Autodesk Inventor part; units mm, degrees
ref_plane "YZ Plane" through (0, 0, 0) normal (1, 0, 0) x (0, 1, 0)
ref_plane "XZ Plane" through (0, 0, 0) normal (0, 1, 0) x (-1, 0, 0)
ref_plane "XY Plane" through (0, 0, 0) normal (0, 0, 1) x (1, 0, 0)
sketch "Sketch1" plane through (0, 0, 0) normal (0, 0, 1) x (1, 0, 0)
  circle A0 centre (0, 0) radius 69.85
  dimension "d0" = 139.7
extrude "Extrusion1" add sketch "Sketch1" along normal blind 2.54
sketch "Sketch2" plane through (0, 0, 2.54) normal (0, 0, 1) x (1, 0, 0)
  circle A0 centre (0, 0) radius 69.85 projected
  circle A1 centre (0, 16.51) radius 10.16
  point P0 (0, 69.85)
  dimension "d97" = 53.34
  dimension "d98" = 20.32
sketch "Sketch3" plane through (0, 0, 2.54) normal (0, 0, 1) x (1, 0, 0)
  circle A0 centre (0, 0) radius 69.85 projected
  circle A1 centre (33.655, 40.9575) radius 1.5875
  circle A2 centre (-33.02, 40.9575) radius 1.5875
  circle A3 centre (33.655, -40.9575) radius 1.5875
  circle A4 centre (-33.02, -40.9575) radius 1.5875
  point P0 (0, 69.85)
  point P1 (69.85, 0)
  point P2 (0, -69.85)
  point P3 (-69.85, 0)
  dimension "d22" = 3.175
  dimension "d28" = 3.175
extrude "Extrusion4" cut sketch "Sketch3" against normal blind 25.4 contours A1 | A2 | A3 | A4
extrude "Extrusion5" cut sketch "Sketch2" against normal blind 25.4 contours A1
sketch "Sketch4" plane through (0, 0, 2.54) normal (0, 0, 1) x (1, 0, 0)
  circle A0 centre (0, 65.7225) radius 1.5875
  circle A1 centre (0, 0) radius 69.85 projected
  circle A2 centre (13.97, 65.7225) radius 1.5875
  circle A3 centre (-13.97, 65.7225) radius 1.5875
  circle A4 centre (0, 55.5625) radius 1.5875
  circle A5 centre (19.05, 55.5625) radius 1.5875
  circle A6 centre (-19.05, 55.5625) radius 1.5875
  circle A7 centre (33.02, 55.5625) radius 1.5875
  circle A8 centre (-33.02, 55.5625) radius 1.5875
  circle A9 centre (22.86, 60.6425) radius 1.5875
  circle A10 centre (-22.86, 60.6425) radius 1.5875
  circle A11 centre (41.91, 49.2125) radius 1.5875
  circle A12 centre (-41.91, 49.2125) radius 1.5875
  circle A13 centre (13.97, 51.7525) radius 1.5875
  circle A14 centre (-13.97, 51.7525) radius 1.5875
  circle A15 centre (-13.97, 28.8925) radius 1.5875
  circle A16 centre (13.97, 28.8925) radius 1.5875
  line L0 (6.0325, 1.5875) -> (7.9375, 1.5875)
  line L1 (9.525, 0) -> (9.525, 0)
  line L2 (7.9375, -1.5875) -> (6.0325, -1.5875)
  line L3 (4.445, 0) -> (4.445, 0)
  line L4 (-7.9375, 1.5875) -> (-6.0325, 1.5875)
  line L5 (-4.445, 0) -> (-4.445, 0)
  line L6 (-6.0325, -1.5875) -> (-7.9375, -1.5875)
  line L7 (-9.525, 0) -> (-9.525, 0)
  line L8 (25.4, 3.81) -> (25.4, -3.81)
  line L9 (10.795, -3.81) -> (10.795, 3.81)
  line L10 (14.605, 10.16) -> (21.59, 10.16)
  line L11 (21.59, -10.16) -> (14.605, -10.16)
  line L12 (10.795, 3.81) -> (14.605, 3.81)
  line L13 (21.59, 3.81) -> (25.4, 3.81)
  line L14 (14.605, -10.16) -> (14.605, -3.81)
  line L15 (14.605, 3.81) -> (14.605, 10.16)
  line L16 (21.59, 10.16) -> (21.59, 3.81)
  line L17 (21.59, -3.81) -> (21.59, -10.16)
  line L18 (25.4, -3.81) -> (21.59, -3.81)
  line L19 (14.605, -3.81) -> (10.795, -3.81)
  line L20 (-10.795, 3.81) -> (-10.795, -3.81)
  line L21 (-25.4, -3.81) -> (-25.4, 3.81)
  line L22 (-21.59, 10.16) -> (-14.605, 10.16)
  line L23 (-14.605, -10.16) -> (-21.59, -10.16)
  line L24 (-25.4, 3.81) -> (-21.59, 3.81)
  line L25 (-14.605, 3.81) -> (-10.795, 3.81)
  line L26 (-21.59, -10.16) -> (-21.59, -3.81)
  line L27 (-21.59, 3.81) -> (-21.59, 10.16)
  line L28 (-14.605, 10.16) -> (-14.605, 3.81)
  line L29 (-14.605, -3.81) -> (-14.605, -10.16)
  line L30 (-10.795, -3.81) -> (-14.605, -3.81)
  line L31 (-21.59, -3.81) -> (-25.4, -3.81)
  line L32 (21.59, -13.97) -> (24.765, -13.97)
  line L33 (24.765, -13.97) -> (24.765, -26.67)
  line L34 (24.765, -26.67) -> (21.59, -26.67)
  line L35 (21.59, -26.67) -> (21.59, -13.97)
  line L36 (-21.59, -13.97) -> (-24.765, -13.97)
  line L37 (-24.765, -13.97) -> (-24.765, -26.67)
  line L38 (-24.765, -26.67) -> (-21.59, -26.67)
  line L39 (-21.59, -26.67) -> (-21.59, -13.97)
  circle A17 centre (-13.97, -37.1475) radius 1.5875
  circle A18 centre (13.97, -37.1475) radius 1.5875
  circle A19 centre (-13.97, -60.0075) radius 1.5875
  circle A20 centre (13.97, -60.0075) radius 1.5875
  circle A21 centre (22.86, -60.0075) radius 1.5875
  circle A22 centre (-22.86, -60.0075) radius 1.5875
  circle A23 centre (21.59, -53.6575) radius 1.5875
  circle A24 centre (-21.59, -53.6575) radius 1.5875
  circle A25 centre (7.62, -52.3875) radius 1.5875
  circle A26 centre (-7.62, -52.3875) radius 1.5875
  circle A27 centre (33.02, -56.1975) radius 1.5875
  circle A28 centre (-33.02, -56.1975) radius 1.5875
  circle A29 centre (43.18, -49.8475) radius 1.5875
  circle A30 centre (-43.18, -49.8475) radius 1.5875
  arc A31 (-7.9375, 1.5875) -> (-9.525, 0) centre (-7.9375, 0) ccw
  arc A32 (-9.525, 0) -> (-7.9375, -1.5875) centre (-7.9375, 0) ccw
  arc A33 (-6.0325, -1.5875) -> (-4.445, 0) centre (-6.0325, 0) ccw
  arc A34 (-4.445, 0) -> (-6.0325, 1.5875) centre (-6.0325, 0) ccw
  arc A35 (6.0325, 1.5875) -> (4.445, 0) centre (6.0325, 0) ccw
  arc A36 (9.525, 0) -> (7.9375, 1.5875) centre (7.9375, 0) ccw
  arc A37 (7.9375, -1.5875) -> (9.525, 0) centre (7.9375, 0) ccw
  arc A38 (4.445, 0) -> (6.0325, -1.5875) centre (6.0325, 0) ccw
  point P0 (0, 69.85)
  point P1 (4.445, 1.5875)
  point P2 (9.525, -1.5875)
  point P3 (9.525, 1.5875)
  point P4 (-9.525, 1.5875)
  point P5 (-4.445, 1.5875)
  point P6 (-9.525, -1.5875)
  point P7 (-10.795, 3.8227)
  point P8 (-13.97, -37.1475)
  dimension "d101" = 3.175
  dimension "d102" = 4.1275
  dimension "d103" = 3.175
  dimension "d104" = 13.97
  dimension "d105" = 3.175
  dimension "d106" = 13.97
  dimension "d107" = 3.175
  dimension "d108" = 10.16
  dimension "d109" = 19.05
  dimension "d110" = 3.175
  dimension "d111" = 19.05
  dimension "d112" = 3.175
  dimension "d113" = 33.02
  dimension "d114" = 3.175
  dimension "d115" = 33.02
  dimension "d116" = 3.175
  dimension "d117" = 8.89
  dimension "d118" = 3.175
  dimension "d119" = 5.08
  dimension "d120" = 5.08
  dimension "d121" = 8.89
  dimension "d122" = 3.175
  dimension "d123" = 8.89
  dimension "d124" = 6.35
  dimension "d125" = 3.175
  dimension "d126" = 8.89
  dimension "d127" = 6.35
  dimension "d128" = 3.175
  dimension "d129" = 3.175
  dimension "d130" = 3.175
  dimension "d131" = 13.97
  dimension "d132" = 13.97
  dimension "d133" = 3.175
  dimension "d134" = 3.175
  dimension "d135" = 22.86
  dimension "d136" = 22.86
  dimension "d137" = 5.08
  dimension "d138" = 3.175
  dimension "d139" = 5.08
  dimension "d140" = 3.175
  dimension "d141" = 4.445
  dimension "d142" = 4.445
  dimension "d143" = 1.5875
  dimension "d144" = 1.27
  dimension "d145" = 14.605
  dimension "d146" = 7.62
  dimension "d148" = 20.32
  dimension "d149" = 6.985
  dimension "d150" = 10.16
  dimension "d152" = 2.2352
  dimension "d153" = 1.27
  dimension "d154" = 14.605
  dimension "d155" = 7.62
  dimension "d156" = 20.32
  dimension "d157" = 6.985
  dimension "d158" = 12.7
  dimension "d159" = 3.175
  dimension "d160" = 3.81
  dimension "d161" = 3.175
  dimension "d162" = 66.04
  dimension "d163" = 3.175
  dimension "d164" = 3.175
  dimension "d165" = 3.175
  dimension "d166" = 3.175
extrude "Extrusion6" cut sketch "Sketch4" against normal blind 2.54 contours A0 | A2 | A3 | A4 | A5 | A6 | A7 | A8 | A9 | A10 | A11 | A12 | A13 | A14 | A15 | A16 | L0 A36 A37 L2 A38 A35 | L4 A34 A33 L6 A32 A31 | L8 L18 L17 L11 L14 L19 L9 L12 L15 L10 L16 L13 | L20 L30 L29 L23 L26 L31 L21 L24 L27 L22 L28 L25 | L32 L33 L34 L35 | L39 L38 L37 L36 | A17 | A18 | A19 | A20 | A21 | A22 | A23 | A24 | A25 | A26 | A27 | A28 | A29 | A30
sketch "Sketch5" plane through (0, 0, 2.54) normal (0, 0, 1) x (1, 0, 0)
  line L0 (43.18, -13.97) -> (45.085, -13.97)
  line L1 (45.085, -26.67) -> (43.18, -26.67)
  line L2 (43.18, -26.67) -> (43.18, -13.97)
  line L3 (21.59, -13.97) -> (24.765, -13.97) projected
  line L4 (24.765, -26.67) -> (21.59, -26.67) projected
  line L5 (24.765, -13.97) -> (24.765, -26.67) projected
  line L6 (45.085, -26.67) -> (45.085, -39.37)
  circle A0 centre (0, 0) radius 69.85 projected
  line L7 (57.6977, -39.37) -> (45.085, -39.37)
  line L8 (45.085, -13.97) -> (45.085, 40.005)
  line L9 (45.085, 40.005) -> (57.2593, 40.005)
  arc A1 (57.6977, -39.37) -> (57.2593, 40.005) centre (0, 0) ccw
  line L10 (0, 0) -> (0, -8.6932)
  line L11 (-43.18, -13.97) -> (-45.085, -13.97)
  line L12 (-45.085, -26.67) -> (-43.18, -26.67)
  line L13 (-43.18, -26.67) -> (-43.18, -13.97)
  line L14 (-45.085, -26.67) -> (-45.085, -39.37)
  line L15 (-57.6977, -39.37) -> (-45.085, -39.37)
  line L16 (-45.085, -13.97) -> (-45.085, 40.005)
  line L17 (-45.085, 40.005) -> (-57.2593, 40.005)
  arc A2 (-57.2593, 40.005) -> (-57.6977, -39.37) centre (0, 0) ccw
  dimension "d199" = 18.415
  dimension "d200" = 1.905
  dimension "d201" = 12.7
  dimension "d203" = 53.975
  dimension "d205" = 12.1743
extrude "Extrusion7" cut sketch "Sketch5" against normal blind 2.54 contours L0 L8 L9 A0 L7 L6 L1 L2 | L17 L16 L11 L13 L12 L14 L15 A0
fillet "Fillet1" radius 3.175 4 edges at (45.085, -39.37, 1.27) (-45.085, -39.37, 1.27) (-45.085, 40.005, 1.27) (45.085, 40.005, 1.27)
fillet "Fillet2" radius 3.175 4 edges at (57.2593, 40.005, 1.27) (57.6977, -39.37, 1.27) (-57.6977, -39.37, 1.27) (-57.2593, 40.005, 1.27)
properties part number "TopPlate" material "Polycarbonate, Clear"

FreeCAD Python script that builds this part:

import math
import FreeCAD as App
import Part
import Sketcher

V = App.Vector
Q = App.Units.Quantity


def edges_at(feature, points):
    """Names of the edges that pass closest to the given points."""
    edges = feature.Shape.Edges
    near = lambda p: min(range(len(edges)), key=lambda i: edges[i].distToShape(Part.Vertex(*p))[0])
    return sorted({f"Edge{near(p) + 1}" for p in points})

doc = App.newDocument("Part")
body = doc.addObject("PartDesign::Body", "Body")

sketch1 = body.newObject("Sketcher::SketchObject", "Sketch")
sketch1.AttachmentSupport = (doc.getObject("XY_Plane"), [""])
sketch1.MapMode = "FlatFace"
sketch1.addGeometry(Part.Circle(V(0, 0, 0), V(0, 0, 1), 70), False)
sketch1.addConstraint(Sketcher.Constraint("Coincident", 0, 3, -1, 1))
sketch1.addConstraint(Sketcher.Constraint("Diameter", 0, Q("5.5 in")))
pad1 = body.newObject("PartDesign::Pad", "Pad")
pad1.Profile = sketch1
pad1.Length = Q("0.1 in")

sketch2 = body.newObject("Sketcher::SketchObject", "Sketch001")
sketch2.AttachmentSupport = (doc.getObject("XY_Plane"), [""])
sketch2.MapMode = "FlatFace"
sketch2.AttachmentOffset = App.Placement(V(0, 0, 0.1 * 25.4), App.Rotation())
sketch2.addGeometry(Part.Circle(V(33.7, 41, 0), V(0, 0, 1), 1.6), False)
sketch2.addGeometry(Part.Circle(V(-33, 41, 0), V(0, 0, 1), 1.6), False)
sketch2.addGeometry(Part.Circle(V(33.7, -41, 0), V(0, 0, 1), 1.6), False)
sketch2.addGeometry(Part.Circle(V(-33, -41, 0), V(0, 0, 1), 1.6), False)
sketch2.addConstraint(Sketcher.Constraint("Equal", 0, 1))
sketch2.addConstraint(Sketcher.Constraint("Equal", 1, 2))
sketch2.addConstraint(Sketcher.Constraint("Equal", 2, 3))
sketch2.addConstraint(Sketcher.Constraint("Symmetric", 0, 3, 2, 3, -1))
sketch2.addConstraint(Sketcher.Constraint("Symmetric", 1, 3, 3, 3, -1))
sketch2.addConstraint(Sketcher.Constraint("Horizontal", 0, 3, 1, 3))
sketch2.addConstraint(Sketcher.Constraint("Diameter", 0, Q("0.125 in")))
sketch2.addConstraint(Sketcher.Constraint("DistanceX", 1, 3, -1, 1, Q("1.3 in")))
sketch2.addConstraint(Sketcher.Constraint("DistanceX", -1, 1, 0, 3, Q("1.325 in")))
sketch2.addConstraint(Sketcher.Constraint("DistanceY", 2, 3, 0, 3, Q("3.225 in")))
pocket1 = body.newObject("PartDesign::Pocket", "Pocket")
pocket1.Profile = sketch2
pocket1.Length = Q("1 in")

sketch3 = body.newObject("Sketcher::SketchObject", "Sketch002")
sketch3.AttachmentSupport = (doc.getObject("XY_Plane"), [""])
sketch3.MapMode = "FlatFace"
sketch3.AttachmentOffset = App.Placement(V(0, 0, 0.1 * 25.4), App.Rotation())
sketch3.addGeometry(Part.Circle(V(0, 17, 0), V(0, 0, 1), 10), False)
sketch3.addConstraint(Sketcher.Constraint("PointOnObject", 0, 3, -2))
sketch3.addConstraint(Sketcher.Constraint("Diameter", 0, Q("0.8 in")))
sketch3.addConstraint(Sketcher.Constraint("DistanceY", -1, 1, 0, 3, Q("0.65 in")))
pocket2 = body.newObject("PartDesign::Pocket", "Pocket001")
pocket2.Profile = sketch3
pocket2.Length = Q("1 in")

sketch4 = body.newObject("Sketcher::SketchObject", "Sketch003")
sketch4.AttachmentSupport = (doc.getObject("XY_Plane"), [""])
sketch4.MapMode = "FlatFace"
sketch4.AttachmentOffset = App.Placement(V(0, 0, 0.1 * 25.4), App.Rotation())
sketch4.addGeometry(Part.Circle(V(0, 65.7, 0), V(0, 0, 1), 1.6), False)
sketch4.addGeometry(Part.Circle(V(14, 65.7, 0), V(0, 0, 1), 1.6), False)
sketch4.addGeometry(Part.Circle(V(-14, 65.7, 0), V(0, 0, 1), 1.6), False)
sketch4.addGeometry(Part.Circle(V(0, 55.6, 0), V(0, 0, 1), 1.6), False)
sketch4.addGeometry(Part.Circle(V(19.1, 55.6, 0), V(0, 0, 1), 1.6), False)
sketch4.addGeometry(Part.Circle(V(-19.1, 55.6, 0), V(0, 0, 1), 1.6), False)
sketch4.addGeometry(Part.Circle(V(33, 55.6, 0), V(0, 0, 1), 1.6), False)
sketch4.addGeometry(Part.Circle(V(-33, 55.6, 0), V(0, 0, 1), 1.6), False)
sketch4.addGeometry(Part.Circle(V(22.9, 60.6, 0), V(0, 0, 1), 1.6), False)
sketch4.addGeometry(Part.Circle(V(-22.9, 60.6, 0), V(0, 0, 1), 1.6), False)
sketch4.addGeometry(Part.Circle(V(41.9, 49.2, 0), V(0, 0, 1), 1.6), False)
sketch4.addGeometry(Part.Circle(V(-41.9, 49.2, 0), V(0, 0, 1), 1.6), False)
sketch4.addGeometry(Part.Circle(V(14, 51.8, 0), V(0, 0, 1), 1.6), False)
sketch4.addGeometry(Part.Circle(V(-14, 51.8, 0), V(0, 0, 1), 1.6), False)
sketch4.addGeometry(Part.Circle(V(-14, 28.9, 0), V(0, 0, 1), 1.6), False)
sketch4.addGeometry(Part.Circle(V(14, 28.9, 0), V(0, 0, 1), 1.6), False)
sketch4.addGeometry(Part.LineSegment(V(7.9, 1.6, 0), V(6, 1.6, 0)), False)
sketch4.addGeometry(Part.ArcOfCircle(Part.Circle(V(6, 0, 0), V(0, 0, 1), 1.6), math.radians(90), math.radians(270)), False)
sketch4.addGeometry(Part.LineSegment(V(6, -1.6, 0), V(7.9, -1.6, 0)), False)
sketch4.addGeometry(Part.ArcOfCircle(Part.Circle(V(7.9, 0, 0), V(0, 0, 1), 1.6), math.radians(-90), math.radians(90)), False)
sketch4.addGeometry(Part.LineSegment(V(-6, 1.6, 0), V(-7.9, 1.6, 0)), False)
sketch4.addGeometry(Part.ArcOfCircle(Part.Circle(V(-7.9, 0, 0), V(0, 0, 1), 1.6), math.radians(90), math.radians(270)), False)
sketch4.addGeometry(Part.LineSegment(V(-7.9, -1.6, 0), V(-6, -1.6, 0)), False)
sketch4.addGeometry(Part.ArcOfCircle(Part.Circle(V(-6, 0, 0), V(0, 0, 1), 1.6), math.radians(-90), math.radians(90)), False)
sketch4.addGeometry(Part.LineSegment(V(25.4, -3.8, 0), V(25.4, 3.8, 0)), False)
sketch4.addGeometry(Part.LineSegment(V(25.4, 3.8, 0), V(21.6, 3.8, 0)), False)
sketch4.addGeometry(Part.LineSegment(V(21.6, 3.8, 0), V(21.6, 10.2, 0)), False)
sketch4.addGeometry(Part.LineSegment(V(21.6, 10.2, 0), V(14.6, 10.2, 0)), False)
sketch4.addGeometry(Part.LineSegment(V(14.6, 10.2, 0), V(14.6, 3.8, 0)), False)
sketch4.addGeometry(Part.LineSegment(V(14.6, 3.8, 0), V(10.8, 3.8, 0)), False)
sketch4.addGeometry(Part.LineSegment(V(10.8, 3.8, 0), V(10.8, -3.8, 0)), False)
sketch4.addGeometry(Part.LineSegment(V(10.8, -3.8, 0), V(14.6, -3.8, 0)), False)
sketch4.addGeometry(Part.LineSegment(V(14.6, -3.8, 0), V(14.6, -10.2, 0)), False)
sketch4.addGeometry(Part.LineSegment(V(14.6, -10.2, 0), V(21.6, -10.2, 0)), False)
sketch4.addGeometry(Part.LineSegment(V(21.6, -10.2, 0), V(21.6, -3.8, 0)), False)
sketch4.addGeometry(Part.LineSegment(V(21.6, -3.8, 0), V(25.4, -3.8, 0)), False)
sketch4.addGeometry(Part.LineSegment(V(-10.8, -3.8, 0), V(-10.8, 3.8, 0)), False)
sketch4.addGeometry(Part.LineSegment(V(-10.8, 3.8, 0), V(-14.6, 3.8, 0)), False)
sketch4.addGeometry(Part.LineSegment(V(-14.6, 3.8, 0), V(-14.6, 10.2, 0)), False)
sketch4.addGeometry(Part.LineSegment(V(-14.6, 10.2, 0), V(-21.6, 10.2, 0)), False)
sketch4.addGeometry(Part.LineSegment(V(-21.6, 10.2, 0), V(-21.6, 3.8, 0)), False)
sketch4.addGeometry(Part.LineSegment(V(-21.6, 3.8, 0), V(-25.4, 3.8, 0)), False)
sketch4.addGeometry(Part.LineSegment(V(-25.4, 3.8, 0), V(-25.4, -3.8, 0)), False)
sketch4.addGeometry(Part.LineSegment(V(-25.4, -3.8, 0), V(-21.6, -3.8, 0)), False)
sketch4.addGeometry(Part.LineSegment(V(-21.6, -3.8, 0), V(-21.6, -10.2, 0)), False)
sketch4.addGeometry(Part.LineSegment(V(-21.6, -10.2, 0), V(-14.6, -10.2, 0)), False)
sketch4.addGeometry(Part.LineSegment(V(-14.6, -10.2, 0), V(-14.6, -3.8, 0)), False)
sketch4.addGeometry(Part.LineSegment(V(-14.6, -3.8, 0), V(-10.8, -3.8, 0)), False)
sketch4.addGeometry(Part.LineSegment(V(24.8, -14, 0), V(21.6, -14, 0)), False)
sketch4.addGeometry(Part.LineSegment(V(21.6, -14, 0), V(21.6, -26.7, 0)), False)
sketch4.addGeometry(Part.LineSegment(V(21.6, -26.7, 0), V(24.8, -26.7, 0)), False)
sketch4.addGeometry(Part.LineSegment(V(24.8, -26.7, 0), V(24.8, -14, 0)), False)
sketch4.addGeometry(Part.LineSegment(V(-21.6, -26.7, 0), V(-21.6, -14, 0)), False)
sketch4.addGeometry(Part.LineSegment(V(-21.6, -14, 0), V(-24.8, -14, 0)), False)
sketch4.addGeometry(Part.LineSegment(V(-24.8, -14, 0), V(-24.8, -26.7, 0)), False)
sketch4.addGeometry(Part.LineSegment(V(-24.8, -26.7, 0), V(-21.6, -26.7, 0)), False)
sketch4.addGeometry(Part.Circle(V(-14, -37.1, 0), V(0, 0, 1), 1.6), False)
sketch4.addGeometry(Part.Circle(V(14, -37.1, 0), V(0, 0, 1), 1.6), False)
sketch4.addGeometry(Part.Circle(V(-14, -60, 0), V(0, 0, 1), 1.6), False)
sketch4.addGeometry(Part.Circle(V(14, -60, 0), V(0, 0, 1), 1.6), False)
sketch4.addGeometry(Part.Circle(V(22.9, -60, 0), V(0, 0, 1), 1.6), False)
sketch4.addGeometry(Part.Circle(V(-22.9, -60, 0), V(0, 0, 1), 1.6), False)
sketch4.addGeometry(Part.Circle(V(21.6, -53.7, 0), V(0, 0, 1), 1.6), False)
sketch4.addGeometry(Part.Circle(V(-21.6, -53.7, 0), V(0, 0, 1), 1.6), False)
sketch4.addGeometry(Part.Circle(V(7.6, -52.4, 0), V(0, 0, 1), 1.6), False)
sketch4.addGeometry(Part.Circle(V(-7.6, -52.4, 0), V(0, 0, 1), 1.6), False)
sketch4.addGeometry(Part.Circle(V(33, -56.2, 0), V(0, 0, 1), 1.6), False)
sketch4.addGeometry(Part.Circle(V(-33, -56.2, 0), V(0, 0, 1), 1.6), False)
sketch4.addGeometry(Part.Circle(V(43.2, -49.8, 0), V(0, 0, 1), 1.6), False)
sketch4.addGeometry(Part.Circle(V(-43.2, -49.8, 0), V(0, 0, 1), 1.6), False)
sketch4.addConstraint(Sketcher.Constraint("Tangent", 16, 2, 17, 1))
sketch4.addConstraint(Sketcher.Constraint("Tangent", 17, 2, 18, 1))
sketch4.addConstraint(Sketcher.Constraint("Tangent", 18, 2, 19, 1))
sketch4.addConstraint(Sketcher.Constraint("Tangent", 19, 2, 16, 1))
sketch4.addConstraint(Sketcher.Constraint("Tangent", 20, 2, 21, 1))
sketch4.addConstraint(Sketcher.Constraint("Tangent", 21, 2, 22, 1))
sketch4.addConstraint(Sketcher.Constraint("Tangent", 22, 2, 23, 1))
sketch4.addConstraint(Sketcher.Constraint("Tangent", 23, 2, 20, 1))
sketch4.addConstraint(Sketcher.Constraint("Coincident", 24, 2, 25, 1))
sketch4.addConstraint(Sketcher.Constraint("Coincident", 25, 2, 26, 1))
sketch4.addConstraint(Sketcher.Constraint("Coincident", 26, 2, 27, 1))
sketch4.addConstraint(Sketcher.Constraint("Coincident", 27, 2, 28, 1))
sketch4.addConstraint(Sketcher.Constraint("Coincident", 28, 2, 29, 1))
sketch4.addConstraint(Sketcher.Constraint("Coincident", 29, 2, 30, 1))
sketch4.addConstraint(Sketcher.Constraint("Coincident", 30, 2, 31, 1))
sketch4.addConstraint(Sketcher.Constraint("Coincident", 31, 2, 32, 1))
sketch4.addConstraint(Sketcher.Constraint("Coincident", 32, 2, 33, 1))
sketch4.addConstraint(Sketcher.Constraint("Coincident", 33, 2, 34, 1))
sketch4.addConstraint(Sketcher.Constraint("Coincident", 34, 2, 35, 1))
sketch4.addConstraint(Sketcher.Constraint("Coincident", 35, 2, 24, 1))
sketch4.addConstraint(Sketcher.Constraint("Coincident", 36, 2, 37, 1))
sketch4.addConstraint(Sketcher.Constraint("Coincident", 37, 2, 38, 1))
sketch4.addConstraint(Sketcher.Constraint("Coincident", 38, 2, 39, 1))
sketch4.addConstraint(Sketcher.Constraint("Coincident", 39, 2, 40, 1))
sketch4.addConstraint(Sketcher.Constraint("Coincident", 40, 2, 41, 1))
sketch4.addConstraint(Sketcher.Constraint("Coincident", 41, 2, 42, 1))
sketch4.addConstraint(Sketcher.Constraint("Coincident", 42, 2, 43, 1))
sketch4.addConstraint(Sketcher.Constraint("Coincident", 43, 2, 44, 1))
sketch4.addConstraint(Sketcher.Constraint("Coincident", 44, 2, 45, 1))
sketch4.addConstraint(Sketcher.Constraint("Coincident", 45, 2, 46, 1))
sketch4.addConstraint(Sketcher.Constraint("Coincident", 46, 2, 47, 1))
sketch4.addConstraint(Sketcher.Constraint("Coincident", 47, 2, 36, 1))
sketch4.addConstraint(Sketcher.Constraint("Coincident", 48, 2, 49, 1))
sketch4.addConstraint(Sketcher.Constraint("Coincident", 49, 2, 50, 1))
sketch4.addConstraint(Sketcher.Constraint("Coincident", 50, 2, 51, 1))
sketch4.addConstraint(Sketcher.Constraint("Coincident", 51, 2, 48, 1))
sketch4.addConstraint(Sketcher.Constraint("Coincident", 52, 2, 53, 1))
sketch4.addConstraint(Sketcher.Constraint("Coincident", 53, 2, 54, 1))
sketch4.addConstraint(Sketcher.Constraint("Coincident", 54, 2, 55, 1))
sketch4.addConstraint(Sketcher.Constraint("Coincident", 55, 2, 52, 1))
sketch4.addConstraint(Sketcher.Constraint("Horizontal", 16))
sketch4.addConstraint(Sketcher.Constraint("Horizontal", 18))
sketch4.addConstraint(Sketcher.Constraint("Horizontal", 20))
sketch4.addConstraint(Sketcher.Constraint("Horizontal", 22))
sketch4.addConstraint(Sketcher.Constraint("Vertical", 24))
sketch4.addConstraint(Sketcher.Constraint("Horizontal", 25))
sketch4.addConstraint(Sketcher.Constraint("Vertical", 26))
sketch4.addConstraint(Sketcher.Constraint("Horizontal", 27))
sketch4.addConstraint(Sketcher.Constraint("Vertical", 28))
sketch4.addConstraint(Sketcher.Constraint("Horizontal", 29))
sketch4.addConstraint(Sketcher.Constraint("Vertical", 30))
sketch4.addConstraint(Sketcher.Constraint("Horizontal", 31))
sketch4.addConstraint(Sketcher.Constraint("Vertical", 32))
sketch4.addConstraint(Sketcher.Constraint("Horizontal", 33))
sketch4.addConstraint(Sketcher.Constraint("Vertical", 34))
sketch4.addConstraint(Sketcher.Constraint("Horizontal", 35))
sketch4.addConstraint(Sketcher.Constraint("Vertical", 36))
sketch4.addConstraint(Sketcher.Constraint("Horizontal", 37))
sketch4.addConstraint(Sketcher.Constraint("Vertical", 38))
sketch4.addConstraint(Sketcher.Constraint("Horizontal", 39))
sketch4.addConstraint(Sketcher.Constraint("Vertical", 40))
sketch4.addConstraint(Sketcher.Constraint("Horizontal", 41))
sketch4.addConstraint(Sketcher.Constraint("Vertical", 42))
sketch4.addConstraint(Sketcher.Constraint("Horizontal", 43))
sketch4.addConstraint(Sketcher.Constraint("Vertical", 44))
sketch4.addConstraint(Sketcher.Constraint("Horizontal", 45))
sketch4.addConstraint(Sketcher.Constraint("Vertical", 46))
sketch4.addConstraint(Sketcher.Constraint("Horizontal", 47))
sketch4.addConstraint(Sketcher.Constraint("Horizontal", 48))
sketch4.addConstraint(Sketcher.Constraint("Vertical", 49))
sketch4.addConstraint(Sketcher.Constraint("Horizontal", 50))
sketch4.addConstraint(Sketcher.Constraint("Vertical", 51))
sketch4.addConstraint(Sketcher.Constraint("Vertical", 52))
sketch4.addConstraint(Sketcher.Constraint("Horizontal", 53))
sketch4.addConstraint(Sketcher.Constraint("Vertical", 54))
sketch4.addConstraint(Sketcher.Constraint("Horizontal", 55))
sketch4.addConstraint(Sketcher.Constraint("Equal", 0, 1))
sketch4.addConstraint(Sketcher.Constraint("Equal", 1, 2))
sketch4.addConstraint(Sketcher.Constraint("Equal", 2, 3))
sketch4.addConstraint(Sketcher.Constraint("Equal", 3, 4))
sketch4.addConstraint(Sketcher.Constraint("Equal", 4, 5))
sketch4.addConstraint(Sketcher.Constraint("Equal", 5, 6))
sketch4.addConstraint(Sketcher.Constraint("Equal", 6, 7))
sketch4.addConstraint(Sketcher.Constraint("Equal", 7, 8))
sketch4.addConstraint(Sketcher.Constraint("Equal", 8, 9))
sketch4.addConstraint(Sketcher.Constraint("Equal", 9, 10))
sketch4.addConstraint(Sketcher.Constraint("Equal", 10, 11))
sketch4.addConstraint(Sketcher.Constraint("Equal", 11, 12))
sketch4.addConstraint(Sketcher.Constraint("Equal", 12, 13))
sketch4.addConstraint(Sketcher.Constraint("Equal", 13, 14))
sketch4.addConstraint(Sketcher.Constraint("Equal", 14, 15))
sketch4.addConstraint(Sketcher.Constraint("Equal", 15, 17))
sketch4.addConstraint(Sketcher.Constraint("Equal", 19, 21))
sketch4.addConstraint(Sketcher.Constraint("Equal", 23, 56))
sketch4.addConstraint(Sketcher.Constraint("Equal", 56, 57))
sketch4.addConstraint(Sketcher.Constraint("Equal", 57, 58))
sketch4.addConstraint(Sketcher.Constraint("Equal", 58, 59))
sketch4.addConstraint(Sketcher.Constraint("Equal", 59, 60))
sketch4.addConstraint(Sketcher.Constraint("Equal", 60, 61))
sketch4.addConstraint(Sketcher.Constraint("Equal", 61, 62))
sketch4.addConstraint(Sketcher.Constraint("Equal", 62, 63))
sketch4.addConstraint(Sketcher.Constraint("Equal", 63, 64))
sketch4.addConstraint(Sketcher.Constraint("Equal", 64, 65))
sketch4.addConstraint(Sketcher.Constraint("Equal", 65, 66))
sketch4.addConstraint(Sketcher.Constraint("Equal", 66, 67))
sketch4.addConstraint(Sketcher.Constraint("Equal", 67, 68))
sketch4.addConstraint(Sketcher.Constraint("Equal", 68, 69))
sketch4.addConstraint(Sketcher.Constraint("Symmetric", 19, 3, 21, 3, -1, 1))
sketch4.addConstraint(Sketcher.Constraint("Symmetric", 30, 2, 36, 2, -1, 1))
sketch4.addConstraint(Sketcher.Constraint("Symmetric", 32, 2, 38, 2, -1, 1))
sketch4.addConstraint(Sketcher.Constraint("Symmetric", 34, 2, 40, 2, -1, 1))
sketch4.addConstraint(Sketcher.Constraint("Symmetric", 24, 2, 42, 2, -1, 1))
sketch4.addConstraint(Sketcher.Constraint("Symmetric", 26, 2, 44, 2, -1, 1))
sketch4.addConstraint(Sketcher.Constraint("Symmetric", 28, 2, 46, 2, -1, 1))
sketch4.addConstraint(Sketcher.Constraint("Symmetric", 1, 3, 2, 3, -2))
sketch4.addConstraint(Sketcher.Constraint("Symmetric", 4, 3, 5, 3, -2))
sketch4.addConstraint(Sketcher.Constraint("Symmetric", 6, 3, 7, 3, -2))
sketch4.addConstraint(Sketcher.Constraint("Symmetric", 8, 3, 9, 3, -2))
sketch4.addConstraint(Sketcher.Constraint("Symmetric", 10, 3, 11, 3, -2))
sketch4.addConstraint(Sketcher.Constraint("Symmetric", 12, 3, 13, 3, -2))
sketch4.addConstraint(Sketcher.Constraint("Symmetric", 14, 3, 15, 3, -2))
sketch4.addConstraint(Sketcher.Constraint("Symmetric", 17, 3, 23, 3, -2))
sketch4.addConstraint(Sketcher.Constraint("Symmetric", 56, 3, 57, 3, -2))
sketch4.addConstraint(Sketcher.Constraint("Symmetric", 58, 3, 59, 3, -2))
sketch4.addConstraint(Sketcher.Constraint("Symmetric", 60, 3, 61, 3, -2))
sketch4.addConstraint(Sketcher.Constraint("Symmetric", 62, 3, 63, 3, -2))
sketch4.addConstraint(Sketcher.Constraint("Symmetric", 64, 3, 65, 3, -2))
sketch4.addConstraint(Sketcher.Constraint("Symmetric", 66, 3, 67, 3, -2))
sketch4.addConstraint(Sketcher.Constraint("Symmetric", 68, 3, 69, 3, -2))
sketch4.addConstraint(Sketcher.Constraint("Symmetric", 28, 2, 37, 2, -2))
sketch4.addConstraint(Sketcher.Constraint("Symmetric", 26, 2, 39, 2, -2))
sketch4.addConstraint(Sketcher.Constraint("Symmetric", 48, 2, 52, 2, -2))
sketch4.addConstraint(Sketcher.Constraint("Symmetric", 50, 2, 54, 2, -2))
sketch4.addConstraint(Sketcher.Constraint("PointOnObject", 0, 3, -2))
sketch4.addConstraint(Sketcher.Constraint("PointOnObject", 3, 3, -2))
sketch4.addConstraint(Sketcher.Constraint("Horizontal", 0, 3, 1, 3))
sketch4.addConstraint(Sketcher.Constraint("Horizontal", 3, 3, 4, 3))
sketch4.addConstraint(Sketcher.Constraint("Horizontal", 5, 3, 6, 3))
sketch4.addConstraint(Sketcher.Constraint("Horizontal", 59, 3, 60, 3))
sketch4.addConstraint(Sketcher.Constraint("Horizontal", 25, 2, 28, 2))
sketch4.addConstraint(Sketcher.Constraint("Horizontal", 31, 2, 34, 2))
sketch4.addConstraint(Sketcher.Constraint("Vertical", 1, 3, 12, 3))
sketch4.addConstraint(Sketcher.Constraint("Vertical", 13, 3, 14, 3))
sketch4.addConstraint(Sketcher.Constraint("Vertical", 14, 3, 56, 3))
sketch4.addConstraint(Sketcher.Constraint("Vertical", 56, 3, 58, 3))
sketch4.addConstraint(Sketcher.Constraint("Vertical", 8, 3, 60, 3))
sketch4.addConstraint(Sketcher.Constraint("Vertical", 6, 3, 66, 3))
sketch4.addConstraint(Sketcher.Constraint("Vertical", 62, 3, 25, 2))
sketch4.addConstraint(Sketcher.Constraint("Vertical", 34, 2, 48, 2))
sketch4.addConstraint(Sketcher.Constraint("Equal", 25, 29))
sketch4.addConstraint(Sketcher.Constraint("Diameter", 0, Q("0.125 in")))
sketch4.addConstraint(Sketcher.Constraint("DistanceY", 24, 1, 24, 2, Q("0.3 in")))
sketch4.addConstraint(Sketcher.Constraint("DistanceY", 49, 2, 49, 1, Q("0.5 in")))
sketch4.addConstraint(Sketcher.Constraint("DistanceX", 25, 2, 25, 1, Q("0.15 in")))
sketch4.addConstraint(Sketcher.Constraint("DistanceY", 26, 1, 26, 2, Q("0.25 in")))
sketch4.addConstraint(Sketcher.Constraint("DistanceX", -1, 1, 6, 3, Q("1.3 in")))
sketch4.addConstraint(Sketcher.Constraint("DistanceX", -1, 1, 8, 3, Q("0.9 in")))
sketch4.addConstraint(Sketcher.Constraint("DistanceX", -1, 1, 64, 3, Q("0.3 in")))
sketch4.addConstraint(Sketcher.Constraint("DistanceX", 27, 2, 27, 1, Q("0.275 in")))
sketch4.addConstraint(Sketcher.Constraint("DistanceX", 48, 2, 48, 1, Q("0.125 in")))
sketch4.addConstraint(Sketcher.Constraint("DistanceX", -1, 1, 1, 3, Q("0.55 in")))
sketch4.addConstraint(Sketcher.Constraint("DistanceX", -1, 1, 4, 3, Q("0.75 in")))
sketch4.addConstraint(Sketcher.Constraint("DistanceY", 48, 2, -1, 1, Q("0.55 in")))
sketch4.addConstraint(Sketcher.Constraint("DistanceX", -1, 1, 27, 2, Q("0.575 in")))
sketch4.addConstraint(Sketcher.Constraint("DistanceX", -1, 1, 68, 3, Q("1.7 in")))
sketch4.addConstraint(Sketcher.Constraint("DistanceX", 16, 2, 16, 1, Q("0.075 in")))
sketch4.addConstraint(Sketcher.Constraint("DistanceX", -1, 1, 10, 3, Q("1.65 in")))
sketch4.addConstraint(Sketcher.Constraint("DistanceY", -1, 1, 3, 3, Q("2.1875 in")))
sketch4.addConstraint(Sketcher.Constraint("DistanceY", -1, 1, 10, 3, Q("1.9375 in")))
sketch4.addConstraint(Sketcher.Constraint("DistanceX", -1, 1, 19, 3, Q("0.3125 in")))
sketch4.addConstraint(Sketcher.Constraint("DistanceY", 64, 3, -1, 1, Q("2.0625 in")))
sketch4.addConstraint(Sketcher.Constraint("DistanceY", -1, 1, 0, 3, Q("2.5875 in")))
sketch4.addConstraint(Sketcher.Constraint("DistanceY", -1, 1, 8, 3, Q("2.3875 in")))
sketch4.addConstraint(Sketcher.Constraint("DistanceY", -1, 1, 12, 3, Q("2.0375 in")))
sketch4.addConstraint(Sketcher.Constraint("DistanceY", -1, 1, 14, 3, Q("1.1375 in")))
sketch4.addConstraint(Sketcher.Constraint("DistanceY", 56, 3, -1, 1, Q("1.4625 in")))
sketch4.addConstraint(Sketcher.Constraint("DistanceY", 58, 3, -1, 1, Q("2.3625 in")))
sketch4.addConstraint(Sketcher.Constraint("DistanceY", 62, 3, -1, 1, Q("2.1125 in")))
sketch4.addConstraint(Sketcher.Constraint("DistanceY", 66, 3, -1, 1, Q("2.2125 in")))
sketch4.addConstraint(Sketcher.Constraint("DistanceY", 68, 3, -1, 1, Q("1.9625 in")))
pocket3 = body.newObject("PartDesign::Pocket", "Pocket002")
pocket3.Profile = sketch4
pocket3.Length = Q("0.1 in")

sketch5 = body.newObject("Sketcher::SketchObject", "Sketch004")
sketch5.AttachmentSupport = (doc.getObject("XY_Plane"), [""])
sketch5.MapMode = "FlatFace"
sketch5.AttachmentOffset = App.Placement(V(0, 0, 0.1 * 25.4), App.Rotation())
sketch5.addGeometry(Part.LineSegment(V(45.1, -14, 0), V(43.2, -14, 0)), False)
sketch5.addGeometry(Part.LineSegment(V(43.2, -14, 0), V(43.2, -26.7, 0)), False)
sketch5.addGeometry(Part.LineSegment(V(43.2, -26.7, 0), V(45.1, -26.7, 0)), False)
sketch5.addGeometry(Part.LineSegment(V(45.1, -26.7, 0), V(45.1, -39.4, 0)), False)
sketch5.addGeometry(Part.LineSegment(V(45.1, -39.4, 0), V(57.7, -39.4, 0)), False)
sketch5.addGeometry(Part.ArcOfCircle(Part.Circle(V(0, 0, 0), V(0, 0, 1), 69.8), math.radians(-34), math.radians(35)), False)
sketch5.addGeometry(Part.LineSegment(V(57.3, 40, 0), V(45.1, 40, 0)), False)
sketch5.addGeometry(Part.LineSegment(V(45.1, 40, 0), V(45.1, -14, 0)), False)
sketch5.addGeometry(Part.LineSegment(V(-45.1, 40, 0), V(-57.3, 40, 0)), False)
sketch5.addGeometry(Part.ArcOfCircle(Part.Circle(V(0, 0, 0), V(0, 0, 1), 69.8), math.radians(145), math.radians(214)), False)
sketch5.addGeometry(Part.LineSegment(V(-57.7, -39.4, 0), V(-45.1, -39.4, 0)), False)
sketch5.addGeometry(Part.LineSegment(V(-45.1, -39.4, 0), V(-45.1, -26.7, 0)), False)
sketch5.addGeometry(Part.LineSegment(V(-45.1, -26.7, 0), V(-43.2, -26.7, 0)), False)
sketch5.addGeometry(Part.LineSegment(V(-43.2, -26.7, 0), V(-43.2, -14, 0)), False)
sketch5.addGeometry(Part.LineSegment(V(-43.2, -14, 0), V(-45.1, -14, 0)), False)
sketch5.addGeometry(Part.LineSegment(V(-45.1, -14, 0), V(-45.1, 40, 0)), False)
sketch5.addConstraint(Sketcher.Constraint("Coincident", 0, 2, 1, 1))
sketch5.addConstraint(Sketcher.Constraint("Coincident", 1, 2, 2, 1))
sketch5.addConstraint(Sketcher.Constraint("Coincident", 2, 2, 3, 1))
sketch5.addConstraint(Sketcher.Constraint("Coincident", 3, 2, 4, 1))
sketch5.addConstraint(Sketcher.Constraint("Coincident", 4, 2, 5, 1))
sketch5.addConstraint(Sketcher.Constraint("Coincident", 5, 2, 6, 1))
sketch5.addConstraint(Sketcher.Constraint("Coincident", 6, 2, 7, 1))
sketch5.addConstraint(Sketcher.Constraint("Coincident", 7, 2, 0, 1))
sketch5.addConstraint(Sketcher.Constraint("Coincident", 8, 2, 9, 1))
sketch5.addConstraint(Sketcher.Constraint("Coincident", 9, 2, 10, 1))
sketch5.addConstraint(Sketcher.Constraint("Coincident", 10, 2, 11, 1))
sketch5.addConstraint(Sketcher.Constraint("Coincident", 11, 2, 12, 1))
sketch5.addConstraint(Sketcher.Constraint("Coincident", 12, 2, 13, 1))
sketch5.addConstraint(Sketcher.Constraint("Coincident", 13, 2, 14, 1))
sketch5.addConstraint(Sketcher.Constraint("Coincident", 14, 2, 15, 1))
sketch5.addConstraint(Sketcher.Constraint("Coincident", 15, 2, 8, 1))
sketch5.addConstraint(Sketcher.Constraint("Horizontal", 0))
sketch5.addConstraint(Sketcher.Constraint("Vertical", 1))
sketch5.addConstraint(Sketcher.Constraint("Horizontal", 2))
sketch5.addConstraint(Sketcher.Constraint("Vertical", 3))
sketch5.addConstraint(Sketcher.Constraint("Horizontal", 4))
sketch5.addConstraint(Sketcher.Constraint("Horizontal", 6))
sketch5.addConstraint(Sketcher.Constraint("Vertical", 7))
sketch5.addConstraint(Sketcher.Constraint("Horizontal", 8))
sketch5.addConstraint(Sketcher.Constraint("Horizontal", 10))
sketch5.addConstraint(Sketcher.Constraint("Vertical", 11))
sketch5.addConstraint(Sketcher.Constraint("Horizontal", 12))
sketch5.addConstraint(Sketcher.Constraint("Vertical", 13))
sketch5.addConstraint(Sketcher.Constraint("Horizontal", 14))
sketch5.addConstraint(Sketcher.Constraint("Vertical", 15))
sketch5.addConstraint(Sketcher.Constraint("Coincident", 5, 3, -1, 1))
sketch5.addConstraint(Sketcher.Constraint("Coincident", 9, 3, -1, 1))
sketch5.addConstraint(Sketcher.Constraint("Equal", 5, 9))
sketch5.addConstraint(Sketcher.Constraint("Symmetric", 3, 2, 10, 2, -2))
sketch5.addConstraint(Sketcher.Constraint("Symmetric", 1, 2, 12, 2, -2))
sketch5.addConstraint(Sketcher.Constraint("Symmetric", 7, 2, 14, 2, -2))
sketch5.addConstraint(Sketcher.Constraint("Horizontal", 6, 2, 8, 2))
sketch5.addConstraint(Sketcher.Constraint("Vertical", 3, 2, 6, 2))
sketch5.addConstraint(Sketcher.Constraint("Equal", 1, 3))
sketch5.addConstraint(Sketcher.Constraint("DistanceY", 1, 2, 1, 1, Q("0.5 in")))
sketch5.addConstraint(Sketcher.Constraint("DistanceX", 0, 2, 0, 1, Q("0.075 in")))
sketch5.addConstraint(Sketcher.Constraint("DistanceY", 7, 2, 7, 1, Q("2.125 in")))
sketch5.addConstraint(Sketcher.Constraint("Radius", 5, Q("2.75 in")))
sketch5.addConstraint(Sketcher.Constraint("DistanceX", 6, 2, 6, 1, Q("0.4793 in")))
sketch5.addConstraint(Sketcher.Constraint("DistanceX", -1, 1, 0, 2, Q("1.7 in")))
pocket4 = body.newObject("PartDesign::Pocket", "Pocket003")
pocket4.Profile = sketch5
pocket4.Length = Q("0.1 in")
doc.recompute()

fillet = body.newObject("PartDesign::Fillet", "Fillet")
fillet.Base = (pocket4, edges_at(pocket4, [
    (45.085, -39.37, 1.27),
    (-45.085, -39.37, 1.27),
    (-45.085, 40.005, 1.27),
    (45.085, 40.005, 1.27),
]))
fillet.Radius = Q("0.125 in")
doc.recompute()

fillet2 = body.newObject("PartDesign::Fillet", "Fillet001")
fillet2.Base = (fillet, edges_at(fillet, [
    (57.259, 40.005, 1.27),
    (57.698, -39.37, 1.27),
    (-57.698, -39.37, 1.27),
    (-57.259, 40.005, 1.27),
]))
fillet2.Radius = Q("0.125 in")

doc.recompute()
